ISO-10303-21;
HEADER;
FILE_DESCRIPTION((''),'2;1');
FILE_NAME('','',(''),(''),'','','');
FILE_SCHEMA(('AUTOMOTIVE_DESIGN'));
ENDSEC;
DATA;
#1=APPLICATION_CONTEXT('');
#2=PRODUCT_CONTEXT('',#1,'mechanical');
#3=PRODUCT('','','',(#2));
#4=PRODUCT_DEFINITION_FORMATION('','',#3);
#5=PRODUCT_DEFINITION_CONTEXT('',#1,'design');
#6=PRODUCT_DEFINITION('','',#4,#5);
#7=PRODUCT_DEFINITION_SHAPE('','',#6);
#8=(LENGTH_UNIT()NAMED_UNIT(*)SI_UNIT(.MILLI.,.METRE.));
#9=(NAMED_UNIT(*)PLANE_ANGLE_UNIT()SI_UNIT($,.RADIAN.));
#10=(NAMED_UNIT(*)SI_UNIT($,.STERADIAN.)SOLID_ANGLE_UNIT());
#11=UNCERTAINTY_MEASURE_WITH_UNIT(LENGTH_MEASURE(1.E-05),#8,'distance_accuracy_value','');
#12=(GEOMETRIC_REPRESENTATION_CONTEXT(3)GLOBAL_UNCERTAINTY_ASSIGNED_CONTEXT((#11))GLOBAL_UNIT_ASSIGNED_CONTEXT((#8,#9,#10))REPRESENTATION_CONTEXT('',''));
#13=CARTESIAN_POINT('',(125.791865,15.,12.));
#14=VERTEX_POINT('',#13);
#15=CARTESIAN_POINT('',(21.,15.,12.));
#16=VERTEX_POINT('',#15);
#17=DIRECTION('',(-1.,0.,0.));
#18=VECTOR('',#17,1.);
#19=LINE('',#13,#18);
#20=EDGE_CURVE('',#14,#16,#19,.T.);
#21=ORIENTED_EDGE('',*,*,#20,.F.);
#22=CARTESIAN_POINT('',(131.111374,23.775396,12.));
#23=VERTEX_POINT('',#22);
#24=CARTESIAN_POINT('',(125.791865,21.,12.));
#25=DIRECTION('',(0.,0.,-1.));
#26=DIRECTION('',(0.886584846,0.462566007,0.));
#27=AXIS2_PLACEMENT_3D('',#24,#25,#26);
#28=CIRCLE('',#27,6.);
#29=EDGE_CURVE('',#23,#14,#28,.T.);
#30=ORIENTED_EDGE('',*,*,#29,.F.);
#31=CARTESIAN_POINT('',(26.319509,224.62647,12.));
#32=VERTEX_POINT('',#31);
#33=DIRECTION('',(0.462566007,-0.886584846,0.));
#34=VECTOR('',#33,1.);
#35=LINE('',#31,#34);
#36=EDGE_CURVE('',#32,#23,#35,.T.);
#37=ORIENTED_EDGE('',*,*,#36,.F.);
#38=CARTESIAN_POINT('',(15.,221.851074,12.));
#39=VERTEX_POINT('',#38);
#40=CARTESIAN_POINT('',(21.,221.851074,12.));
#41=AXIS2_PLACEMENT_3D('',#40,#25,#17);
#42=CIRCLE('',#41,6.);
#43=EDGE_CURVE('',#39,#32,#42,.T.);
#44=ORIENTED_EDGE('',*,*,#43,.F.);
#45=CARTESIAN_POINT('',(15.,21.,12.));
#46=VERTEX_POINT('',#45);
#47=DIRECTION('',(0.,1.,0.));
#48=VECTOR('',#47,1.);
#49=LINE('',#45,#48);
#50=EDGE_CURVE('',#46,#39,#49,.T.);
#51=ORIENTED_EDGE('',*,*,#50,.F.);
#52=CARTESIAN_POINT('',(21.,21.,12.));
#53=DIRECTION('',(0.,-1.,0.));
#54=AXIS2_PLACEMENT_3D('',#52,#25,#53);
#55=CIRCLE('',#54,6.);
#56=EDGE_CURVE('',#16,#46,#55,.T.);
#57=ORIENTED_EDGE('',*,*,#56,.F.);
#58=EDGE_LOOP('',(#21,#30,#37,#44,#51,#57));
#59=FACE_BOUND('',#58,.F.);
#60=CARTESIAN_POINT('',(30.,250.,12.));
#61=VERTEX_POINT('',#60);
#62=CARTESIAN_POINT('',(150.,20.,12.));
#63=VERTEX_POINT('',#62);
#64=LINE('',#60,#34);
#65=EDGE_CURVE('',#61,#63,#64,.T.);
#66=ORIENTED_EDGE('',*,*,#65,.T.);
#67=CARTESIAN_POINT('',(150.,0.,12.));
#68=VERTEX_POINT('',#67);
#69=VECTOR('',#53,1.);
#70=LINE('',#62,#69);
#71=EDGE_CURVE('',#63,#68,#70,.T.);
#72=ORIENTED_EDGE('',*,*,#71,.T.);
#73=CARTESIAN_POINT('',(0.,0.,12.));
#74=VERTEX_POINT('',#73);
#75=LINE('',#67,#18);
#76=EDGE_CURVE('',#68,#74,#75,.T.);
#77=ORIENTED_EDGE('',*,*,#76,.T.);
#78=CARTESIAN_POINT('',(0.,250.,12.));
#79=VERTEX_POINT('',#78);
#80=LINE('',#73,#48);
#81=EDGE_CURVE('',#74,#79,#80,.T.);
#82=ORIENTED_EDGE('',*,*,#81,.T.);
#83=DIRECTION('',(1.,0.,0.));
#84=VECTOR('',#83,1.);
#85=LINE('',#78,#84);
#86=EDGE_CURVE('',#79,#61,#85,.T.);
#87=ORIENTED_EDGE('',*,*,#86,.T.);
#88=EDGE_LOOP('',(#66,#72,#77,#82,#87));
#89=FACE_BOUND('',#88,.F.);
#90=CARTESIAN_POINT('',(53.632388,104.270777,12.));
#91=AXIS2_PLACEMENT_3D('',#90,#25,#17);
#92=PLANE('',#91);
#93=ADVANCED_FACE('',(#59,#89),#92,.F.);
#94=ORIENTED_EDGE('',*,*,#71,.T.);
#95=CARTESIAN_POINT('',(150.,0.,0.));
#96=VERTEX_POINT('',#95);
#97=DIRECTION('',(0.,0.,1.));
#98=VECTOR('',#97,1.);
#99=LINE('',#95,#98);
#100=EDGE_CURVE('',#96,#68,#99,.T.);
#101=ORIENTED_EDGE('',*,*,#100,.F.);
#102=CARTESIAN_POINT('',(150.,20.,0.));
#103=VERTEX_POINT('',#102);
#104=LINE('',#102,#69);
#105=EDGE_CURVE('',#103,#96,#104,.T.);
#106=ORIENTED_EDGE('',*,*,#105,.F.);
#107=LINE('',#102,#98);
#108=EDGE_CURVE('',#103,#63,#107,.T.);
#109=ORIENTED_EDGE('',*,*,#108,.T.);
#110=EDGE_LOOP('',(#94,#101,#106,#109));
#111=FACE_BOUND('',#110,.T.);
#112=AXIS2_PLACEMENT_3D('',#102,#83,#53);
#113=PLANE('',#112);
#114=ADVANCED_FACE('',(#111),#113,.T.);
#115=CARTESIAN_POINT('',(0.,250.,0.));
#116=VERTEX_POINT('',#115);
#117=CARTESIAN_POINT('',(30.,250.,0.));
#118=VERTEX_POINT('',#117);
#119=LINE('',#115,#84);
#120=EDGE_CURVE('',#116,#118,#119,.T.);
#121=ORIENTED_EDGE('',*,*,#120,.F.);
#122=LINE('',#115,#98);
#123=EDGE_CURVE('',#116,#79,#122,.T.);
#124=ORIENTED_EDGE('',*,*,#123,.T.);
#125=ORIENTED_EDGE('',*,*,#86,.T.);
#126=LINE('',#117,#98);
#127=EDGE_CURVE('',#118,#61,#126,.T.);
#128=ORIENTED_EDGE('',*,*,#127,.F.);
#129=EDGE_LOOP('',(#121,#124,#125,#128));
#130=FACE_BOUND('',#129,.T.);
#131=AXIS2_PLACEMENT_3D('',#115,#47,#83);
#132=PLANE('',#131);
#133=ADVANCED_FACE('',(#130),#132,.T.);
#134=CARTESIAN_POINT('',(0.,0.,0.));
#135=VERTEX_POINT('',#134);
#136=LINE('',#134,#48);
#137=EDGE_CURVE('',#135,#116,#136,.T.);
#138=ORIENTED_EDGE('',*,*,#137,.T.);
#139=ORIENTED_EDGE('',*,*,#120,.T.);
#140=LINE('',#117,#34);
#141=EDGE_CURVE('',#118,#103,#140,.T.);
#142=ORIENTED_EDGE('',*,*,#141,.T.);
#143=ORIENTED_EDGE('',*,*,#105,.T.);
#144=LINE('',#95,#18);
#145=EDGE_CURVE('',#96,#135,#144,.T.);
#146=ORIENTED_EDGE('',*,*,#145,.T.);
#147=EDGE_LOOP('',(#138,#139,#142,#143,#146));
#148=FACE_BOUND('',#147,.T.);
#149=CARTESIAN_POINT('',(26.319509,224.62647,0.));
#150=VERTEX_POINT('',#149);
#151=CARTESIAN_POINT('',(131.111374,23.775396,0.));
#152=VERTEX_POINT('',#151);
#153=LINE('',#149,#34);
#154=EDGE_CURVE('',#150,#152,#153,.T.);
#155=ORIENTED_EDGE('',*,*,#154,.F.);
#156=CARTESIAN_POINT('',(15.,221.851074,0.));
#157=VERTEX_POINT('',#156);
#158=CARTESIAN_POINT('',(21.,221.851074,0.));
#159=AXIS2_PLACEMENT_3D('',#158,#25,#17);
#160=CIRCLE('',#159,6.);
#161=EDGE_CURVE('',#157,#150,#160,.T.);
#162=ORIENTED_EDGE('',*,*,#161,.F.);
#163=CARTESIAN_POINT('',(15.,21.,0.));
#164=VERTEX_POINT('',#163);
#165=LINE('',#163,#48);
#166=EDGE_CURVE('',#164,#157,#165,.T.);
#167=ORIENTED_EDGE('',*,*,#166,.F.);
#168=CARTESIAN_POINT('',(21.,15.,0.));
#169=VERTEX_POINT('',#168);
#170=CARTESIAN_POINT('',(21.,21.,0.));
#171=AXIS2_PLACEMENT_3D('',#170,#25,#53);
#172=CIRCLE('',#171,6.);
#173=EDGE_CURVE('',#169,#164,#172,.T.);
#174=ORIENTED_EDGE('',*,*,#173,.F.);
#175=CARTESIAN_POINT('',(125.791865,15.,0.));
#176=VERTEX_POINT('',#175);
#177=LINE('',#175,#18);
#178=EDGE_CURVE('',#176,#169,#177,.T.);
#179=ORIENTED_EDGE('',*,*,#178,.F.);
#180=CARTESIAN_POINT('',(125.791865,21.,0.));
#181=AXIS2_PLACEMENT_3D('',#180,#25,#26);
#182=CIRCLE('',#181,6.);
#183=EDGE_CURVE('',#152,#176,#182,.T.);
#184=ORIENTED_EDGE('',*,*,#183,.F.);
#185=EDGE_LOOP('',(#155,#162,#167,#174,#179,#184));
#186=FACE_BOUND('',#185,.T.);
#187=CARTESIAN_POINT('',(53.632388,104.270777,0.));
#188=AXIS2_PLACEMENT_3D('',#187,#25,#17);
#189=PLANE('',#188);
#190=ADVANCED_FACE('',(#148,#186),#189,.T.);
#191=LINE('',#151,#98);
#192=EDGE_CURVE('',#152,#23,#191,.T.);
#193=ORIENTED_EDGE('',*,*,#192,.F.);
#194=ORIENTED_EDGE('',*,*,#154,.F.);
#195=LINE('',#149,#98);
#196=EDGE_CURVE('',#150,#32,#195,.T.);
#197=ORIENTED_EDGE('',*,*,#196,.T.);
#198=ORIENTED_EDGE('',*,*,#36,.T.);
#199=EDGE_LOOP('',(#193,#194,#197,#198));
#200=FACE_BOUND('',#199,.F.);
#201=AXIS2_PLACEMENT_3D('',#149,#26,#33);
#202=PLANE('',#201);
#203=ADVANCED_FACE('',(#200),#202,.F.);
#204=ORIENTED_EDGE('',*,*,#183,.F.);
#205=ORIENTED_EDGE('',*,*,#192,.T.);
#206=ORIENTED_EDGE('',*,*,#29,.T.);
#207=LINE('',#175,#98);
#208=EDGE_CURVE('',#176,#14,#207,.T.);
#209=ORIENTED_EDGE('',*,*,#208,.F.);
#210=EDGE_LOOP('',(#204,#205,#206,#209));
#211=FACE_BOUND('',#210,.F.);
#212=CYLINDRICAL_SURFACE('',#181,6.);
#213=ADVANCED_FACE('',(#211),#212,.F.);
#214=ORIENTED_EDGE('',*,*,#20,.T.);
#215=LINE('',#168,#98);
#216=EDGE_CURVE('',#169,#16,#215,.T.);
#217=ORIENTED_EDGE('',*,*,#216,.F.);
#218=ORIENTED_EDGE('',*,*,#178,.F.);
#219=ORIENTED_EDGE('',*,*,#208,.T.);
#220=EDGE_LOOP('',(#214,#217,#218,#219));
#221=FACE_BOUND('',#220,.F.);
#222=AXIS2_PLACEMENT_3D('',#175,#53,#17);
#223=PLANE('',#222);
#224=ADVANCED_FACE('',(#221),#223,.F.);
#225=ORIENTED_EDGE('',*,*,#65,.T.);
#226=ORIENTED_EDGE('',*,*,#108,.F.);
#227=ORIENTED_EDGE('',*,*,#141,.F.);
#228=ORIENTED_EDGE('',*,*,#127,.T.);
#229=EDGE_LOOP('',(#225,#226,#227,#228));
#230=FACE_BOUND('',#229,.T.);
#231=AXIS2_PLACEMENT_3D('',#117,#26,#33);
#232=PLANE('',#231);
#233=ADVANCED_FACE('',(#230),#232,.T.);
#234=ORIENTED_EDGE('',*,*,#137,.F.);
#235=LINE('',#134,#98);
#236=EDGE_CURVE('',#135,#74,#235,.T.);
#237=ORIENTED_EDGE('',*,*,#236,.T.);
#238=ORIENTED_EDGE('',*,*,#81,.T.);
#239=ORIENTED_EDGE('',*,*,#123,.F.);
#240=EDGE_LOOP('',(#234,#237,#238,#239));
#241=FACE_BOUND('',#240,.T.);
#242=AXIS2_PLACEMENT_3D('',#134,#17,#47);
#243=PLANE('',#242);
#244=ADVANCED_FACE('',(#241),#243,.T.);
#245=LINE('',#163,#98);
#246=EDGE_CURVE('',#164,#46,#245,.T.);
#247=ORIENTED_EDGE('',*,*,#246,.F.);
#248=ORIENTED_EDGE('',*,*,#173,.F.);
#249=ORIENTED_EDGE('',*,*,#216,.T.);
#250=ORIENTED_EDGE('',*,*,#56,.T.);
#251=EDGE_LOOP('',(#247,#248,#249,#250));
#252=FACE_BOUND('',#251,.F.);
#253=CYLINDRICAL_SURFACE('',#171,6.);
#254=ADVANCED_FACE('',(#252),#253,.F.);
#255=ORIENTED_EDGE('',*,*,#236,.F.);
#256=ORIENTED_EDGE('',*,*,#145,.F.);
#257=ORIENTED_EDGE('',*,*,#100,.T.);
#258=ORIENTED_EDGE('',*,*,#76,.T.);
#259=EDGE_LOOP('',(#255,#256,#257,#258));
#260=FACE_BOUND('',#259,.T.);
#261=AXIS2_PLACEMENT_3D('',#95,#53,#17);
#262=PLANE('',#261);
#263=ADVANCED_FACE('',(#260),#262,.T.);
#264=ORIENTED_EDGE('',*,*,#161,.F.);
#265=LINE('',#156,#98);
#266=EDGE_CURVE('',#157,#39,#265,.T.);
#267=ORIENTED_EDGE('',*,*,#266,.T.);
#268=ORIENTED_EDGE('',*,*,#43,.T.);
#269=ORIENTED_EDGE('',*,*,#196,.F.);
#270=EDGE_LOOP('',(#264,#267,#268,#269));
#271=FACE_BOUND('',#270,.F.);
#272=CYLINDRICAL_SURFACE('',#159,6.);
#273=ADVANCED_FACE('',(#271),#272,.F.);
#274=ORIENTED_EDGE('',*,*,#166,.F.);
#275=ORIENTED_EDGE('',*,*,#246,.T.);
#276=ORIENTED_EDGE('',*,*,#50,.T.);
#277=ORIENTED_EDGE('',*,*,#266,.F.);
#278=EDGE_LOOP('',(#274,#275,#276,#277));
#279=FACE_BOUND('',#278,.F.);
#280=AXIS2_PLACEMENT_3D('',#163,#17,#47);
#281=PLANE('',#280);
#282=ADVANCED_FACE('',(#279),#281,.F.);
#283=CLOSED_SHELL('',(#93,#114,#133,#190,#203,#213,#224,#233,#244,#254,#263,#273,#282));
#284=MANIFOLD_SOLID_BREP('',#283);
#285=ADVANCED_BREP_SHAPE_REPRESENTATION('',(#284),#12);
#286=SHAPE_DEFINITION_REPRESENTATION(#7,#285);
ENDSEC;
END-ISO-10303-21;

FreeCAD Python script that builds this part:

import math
import FreeCAD as App
import Part
import Sketcher

V = App.Vector

doc = App.newDocument("Part")
body = doc.addObject("PartDesign::Body", "Body")

sketch1 = body.newObject("Sketcher::SketchObject", "Sketch")
sketch1.AttachmentSupport = (doc.getObject("XY_Plane"), [""])
sketch1.MapMode = "FlatFace"
sketch1.addGeometry([
    Part.LineSegment(V(0, 0, 0), V(150, 0, 0)),
    Part.LineSegment(V(150, 0, 0), V(150, 20, 0)),
    Part.LineSegment(V(150, 20, 0), V(30, 250, 0)),
    Part.LineSegment(V(30, 250, 0), V(0, 250, 0)),
    Part.LineSegment(V(0, 250, 0), V(0, 0, 0)),
    Part.LineSegment(V(26, 225, 0), V(131, 24, 0)),
    Part.ArcOfCircle(Part.Circle(V(126, 21, 0), V(0, 0, 1), 6), math.radians(-90), math.radians(28)),
    Part.LineSegment(V(126, 15, 0), V(21, 15, 0)),
    Part.ArcOfCircle(Part.Circle(V(21, 21, 0), V(0, 0, 1), 6), math.radians(180), math.radians(270)),
    Part.LineSegment(V(15, 21, 0), V(15, 222, 0)),
    Part.ArcOfCircle(Part.Circle(V(21, 222, 0), V(0, 0, 1), 6), math.radians(28), math.radians(180)),
], False)
sketch1.addConstraint([
    Sketcher.Constraint("Coincident", 0, 2, 1, 1),
    Sketcher.Constraint("Coincident", 1, 2, 2, 1),
    Sketcher.Constraint("Coincident", 2, 2, 3, 1),
    Sketcher.Constraint("Coincident", 3, 2, 4, 1),
    Sketcher.Constraint("Coincident", 4, 2, 0, 1),
    Sketcher.Constraint("Tangent", 5, 2, 6, 2),
    Sketcher.Constraint("Tangent", 6, 1, 7, 1),
    Sketcher.Constraint("Tangent", 7, 2, 8, 2),
    Sketcher.Constraint("Tangent", 8, 1, 9, 1),
    Sketcher.Constraint("Tangent", 9, 2, 10, 2),
    Sketcher.Constraint("Tangent", 10, 1, 5, 1),
    Sketcher.Constraint("Horizontal", 0),
    Sketcher.Constraint("Vertical", 1),
    Sketcher.Constraint("Horizontal", 3),
    Sketcher.Constraint("Vertical", 4),
    Sketcher.Constraint("Horizontal", 7),
    Sketcher.Constraint("Vertical", 9),
    Sketcher.Constraint("Coincident", 4, 2, -1, 1),
    Sketcher.Constraint("Equal", 6, 8),
    Sketcher.Constraint("Equal", 8, 10),
    Sketcher.Constraint("Parallel", 2, 5),
    Sketcher.Constraint("Radius", 6, 6.0),
    Sketcher.Constraint("DistanceX", 0, 1, 0, 2, 150.0),
    Sketcher.Constraint("DistanceX", 3, 2, 3, 1, 30.0),
    Sketcher.Constraint("DistanceY", 1, 1, 1, 2, 20.0),
    Sketcher.Constraint("DistanceY", 4, 2, 4, 1, 250.0),
    Sketcher.Constraint("DistanceY", -1, 1, 6, 3, 21.0),
    Sketcher.Constraint("DistanceX", -1, 1, 8, 3, 21.0),
    Sketcher.Constraint("DistanceX", 7, 2, 7, 1, 104.791865),
])
pad1 = body.newObject("PartDesign::Pad", "Pad")
pad1.Profile = sketch1
pad1.Length = 12

doc.recompute()
